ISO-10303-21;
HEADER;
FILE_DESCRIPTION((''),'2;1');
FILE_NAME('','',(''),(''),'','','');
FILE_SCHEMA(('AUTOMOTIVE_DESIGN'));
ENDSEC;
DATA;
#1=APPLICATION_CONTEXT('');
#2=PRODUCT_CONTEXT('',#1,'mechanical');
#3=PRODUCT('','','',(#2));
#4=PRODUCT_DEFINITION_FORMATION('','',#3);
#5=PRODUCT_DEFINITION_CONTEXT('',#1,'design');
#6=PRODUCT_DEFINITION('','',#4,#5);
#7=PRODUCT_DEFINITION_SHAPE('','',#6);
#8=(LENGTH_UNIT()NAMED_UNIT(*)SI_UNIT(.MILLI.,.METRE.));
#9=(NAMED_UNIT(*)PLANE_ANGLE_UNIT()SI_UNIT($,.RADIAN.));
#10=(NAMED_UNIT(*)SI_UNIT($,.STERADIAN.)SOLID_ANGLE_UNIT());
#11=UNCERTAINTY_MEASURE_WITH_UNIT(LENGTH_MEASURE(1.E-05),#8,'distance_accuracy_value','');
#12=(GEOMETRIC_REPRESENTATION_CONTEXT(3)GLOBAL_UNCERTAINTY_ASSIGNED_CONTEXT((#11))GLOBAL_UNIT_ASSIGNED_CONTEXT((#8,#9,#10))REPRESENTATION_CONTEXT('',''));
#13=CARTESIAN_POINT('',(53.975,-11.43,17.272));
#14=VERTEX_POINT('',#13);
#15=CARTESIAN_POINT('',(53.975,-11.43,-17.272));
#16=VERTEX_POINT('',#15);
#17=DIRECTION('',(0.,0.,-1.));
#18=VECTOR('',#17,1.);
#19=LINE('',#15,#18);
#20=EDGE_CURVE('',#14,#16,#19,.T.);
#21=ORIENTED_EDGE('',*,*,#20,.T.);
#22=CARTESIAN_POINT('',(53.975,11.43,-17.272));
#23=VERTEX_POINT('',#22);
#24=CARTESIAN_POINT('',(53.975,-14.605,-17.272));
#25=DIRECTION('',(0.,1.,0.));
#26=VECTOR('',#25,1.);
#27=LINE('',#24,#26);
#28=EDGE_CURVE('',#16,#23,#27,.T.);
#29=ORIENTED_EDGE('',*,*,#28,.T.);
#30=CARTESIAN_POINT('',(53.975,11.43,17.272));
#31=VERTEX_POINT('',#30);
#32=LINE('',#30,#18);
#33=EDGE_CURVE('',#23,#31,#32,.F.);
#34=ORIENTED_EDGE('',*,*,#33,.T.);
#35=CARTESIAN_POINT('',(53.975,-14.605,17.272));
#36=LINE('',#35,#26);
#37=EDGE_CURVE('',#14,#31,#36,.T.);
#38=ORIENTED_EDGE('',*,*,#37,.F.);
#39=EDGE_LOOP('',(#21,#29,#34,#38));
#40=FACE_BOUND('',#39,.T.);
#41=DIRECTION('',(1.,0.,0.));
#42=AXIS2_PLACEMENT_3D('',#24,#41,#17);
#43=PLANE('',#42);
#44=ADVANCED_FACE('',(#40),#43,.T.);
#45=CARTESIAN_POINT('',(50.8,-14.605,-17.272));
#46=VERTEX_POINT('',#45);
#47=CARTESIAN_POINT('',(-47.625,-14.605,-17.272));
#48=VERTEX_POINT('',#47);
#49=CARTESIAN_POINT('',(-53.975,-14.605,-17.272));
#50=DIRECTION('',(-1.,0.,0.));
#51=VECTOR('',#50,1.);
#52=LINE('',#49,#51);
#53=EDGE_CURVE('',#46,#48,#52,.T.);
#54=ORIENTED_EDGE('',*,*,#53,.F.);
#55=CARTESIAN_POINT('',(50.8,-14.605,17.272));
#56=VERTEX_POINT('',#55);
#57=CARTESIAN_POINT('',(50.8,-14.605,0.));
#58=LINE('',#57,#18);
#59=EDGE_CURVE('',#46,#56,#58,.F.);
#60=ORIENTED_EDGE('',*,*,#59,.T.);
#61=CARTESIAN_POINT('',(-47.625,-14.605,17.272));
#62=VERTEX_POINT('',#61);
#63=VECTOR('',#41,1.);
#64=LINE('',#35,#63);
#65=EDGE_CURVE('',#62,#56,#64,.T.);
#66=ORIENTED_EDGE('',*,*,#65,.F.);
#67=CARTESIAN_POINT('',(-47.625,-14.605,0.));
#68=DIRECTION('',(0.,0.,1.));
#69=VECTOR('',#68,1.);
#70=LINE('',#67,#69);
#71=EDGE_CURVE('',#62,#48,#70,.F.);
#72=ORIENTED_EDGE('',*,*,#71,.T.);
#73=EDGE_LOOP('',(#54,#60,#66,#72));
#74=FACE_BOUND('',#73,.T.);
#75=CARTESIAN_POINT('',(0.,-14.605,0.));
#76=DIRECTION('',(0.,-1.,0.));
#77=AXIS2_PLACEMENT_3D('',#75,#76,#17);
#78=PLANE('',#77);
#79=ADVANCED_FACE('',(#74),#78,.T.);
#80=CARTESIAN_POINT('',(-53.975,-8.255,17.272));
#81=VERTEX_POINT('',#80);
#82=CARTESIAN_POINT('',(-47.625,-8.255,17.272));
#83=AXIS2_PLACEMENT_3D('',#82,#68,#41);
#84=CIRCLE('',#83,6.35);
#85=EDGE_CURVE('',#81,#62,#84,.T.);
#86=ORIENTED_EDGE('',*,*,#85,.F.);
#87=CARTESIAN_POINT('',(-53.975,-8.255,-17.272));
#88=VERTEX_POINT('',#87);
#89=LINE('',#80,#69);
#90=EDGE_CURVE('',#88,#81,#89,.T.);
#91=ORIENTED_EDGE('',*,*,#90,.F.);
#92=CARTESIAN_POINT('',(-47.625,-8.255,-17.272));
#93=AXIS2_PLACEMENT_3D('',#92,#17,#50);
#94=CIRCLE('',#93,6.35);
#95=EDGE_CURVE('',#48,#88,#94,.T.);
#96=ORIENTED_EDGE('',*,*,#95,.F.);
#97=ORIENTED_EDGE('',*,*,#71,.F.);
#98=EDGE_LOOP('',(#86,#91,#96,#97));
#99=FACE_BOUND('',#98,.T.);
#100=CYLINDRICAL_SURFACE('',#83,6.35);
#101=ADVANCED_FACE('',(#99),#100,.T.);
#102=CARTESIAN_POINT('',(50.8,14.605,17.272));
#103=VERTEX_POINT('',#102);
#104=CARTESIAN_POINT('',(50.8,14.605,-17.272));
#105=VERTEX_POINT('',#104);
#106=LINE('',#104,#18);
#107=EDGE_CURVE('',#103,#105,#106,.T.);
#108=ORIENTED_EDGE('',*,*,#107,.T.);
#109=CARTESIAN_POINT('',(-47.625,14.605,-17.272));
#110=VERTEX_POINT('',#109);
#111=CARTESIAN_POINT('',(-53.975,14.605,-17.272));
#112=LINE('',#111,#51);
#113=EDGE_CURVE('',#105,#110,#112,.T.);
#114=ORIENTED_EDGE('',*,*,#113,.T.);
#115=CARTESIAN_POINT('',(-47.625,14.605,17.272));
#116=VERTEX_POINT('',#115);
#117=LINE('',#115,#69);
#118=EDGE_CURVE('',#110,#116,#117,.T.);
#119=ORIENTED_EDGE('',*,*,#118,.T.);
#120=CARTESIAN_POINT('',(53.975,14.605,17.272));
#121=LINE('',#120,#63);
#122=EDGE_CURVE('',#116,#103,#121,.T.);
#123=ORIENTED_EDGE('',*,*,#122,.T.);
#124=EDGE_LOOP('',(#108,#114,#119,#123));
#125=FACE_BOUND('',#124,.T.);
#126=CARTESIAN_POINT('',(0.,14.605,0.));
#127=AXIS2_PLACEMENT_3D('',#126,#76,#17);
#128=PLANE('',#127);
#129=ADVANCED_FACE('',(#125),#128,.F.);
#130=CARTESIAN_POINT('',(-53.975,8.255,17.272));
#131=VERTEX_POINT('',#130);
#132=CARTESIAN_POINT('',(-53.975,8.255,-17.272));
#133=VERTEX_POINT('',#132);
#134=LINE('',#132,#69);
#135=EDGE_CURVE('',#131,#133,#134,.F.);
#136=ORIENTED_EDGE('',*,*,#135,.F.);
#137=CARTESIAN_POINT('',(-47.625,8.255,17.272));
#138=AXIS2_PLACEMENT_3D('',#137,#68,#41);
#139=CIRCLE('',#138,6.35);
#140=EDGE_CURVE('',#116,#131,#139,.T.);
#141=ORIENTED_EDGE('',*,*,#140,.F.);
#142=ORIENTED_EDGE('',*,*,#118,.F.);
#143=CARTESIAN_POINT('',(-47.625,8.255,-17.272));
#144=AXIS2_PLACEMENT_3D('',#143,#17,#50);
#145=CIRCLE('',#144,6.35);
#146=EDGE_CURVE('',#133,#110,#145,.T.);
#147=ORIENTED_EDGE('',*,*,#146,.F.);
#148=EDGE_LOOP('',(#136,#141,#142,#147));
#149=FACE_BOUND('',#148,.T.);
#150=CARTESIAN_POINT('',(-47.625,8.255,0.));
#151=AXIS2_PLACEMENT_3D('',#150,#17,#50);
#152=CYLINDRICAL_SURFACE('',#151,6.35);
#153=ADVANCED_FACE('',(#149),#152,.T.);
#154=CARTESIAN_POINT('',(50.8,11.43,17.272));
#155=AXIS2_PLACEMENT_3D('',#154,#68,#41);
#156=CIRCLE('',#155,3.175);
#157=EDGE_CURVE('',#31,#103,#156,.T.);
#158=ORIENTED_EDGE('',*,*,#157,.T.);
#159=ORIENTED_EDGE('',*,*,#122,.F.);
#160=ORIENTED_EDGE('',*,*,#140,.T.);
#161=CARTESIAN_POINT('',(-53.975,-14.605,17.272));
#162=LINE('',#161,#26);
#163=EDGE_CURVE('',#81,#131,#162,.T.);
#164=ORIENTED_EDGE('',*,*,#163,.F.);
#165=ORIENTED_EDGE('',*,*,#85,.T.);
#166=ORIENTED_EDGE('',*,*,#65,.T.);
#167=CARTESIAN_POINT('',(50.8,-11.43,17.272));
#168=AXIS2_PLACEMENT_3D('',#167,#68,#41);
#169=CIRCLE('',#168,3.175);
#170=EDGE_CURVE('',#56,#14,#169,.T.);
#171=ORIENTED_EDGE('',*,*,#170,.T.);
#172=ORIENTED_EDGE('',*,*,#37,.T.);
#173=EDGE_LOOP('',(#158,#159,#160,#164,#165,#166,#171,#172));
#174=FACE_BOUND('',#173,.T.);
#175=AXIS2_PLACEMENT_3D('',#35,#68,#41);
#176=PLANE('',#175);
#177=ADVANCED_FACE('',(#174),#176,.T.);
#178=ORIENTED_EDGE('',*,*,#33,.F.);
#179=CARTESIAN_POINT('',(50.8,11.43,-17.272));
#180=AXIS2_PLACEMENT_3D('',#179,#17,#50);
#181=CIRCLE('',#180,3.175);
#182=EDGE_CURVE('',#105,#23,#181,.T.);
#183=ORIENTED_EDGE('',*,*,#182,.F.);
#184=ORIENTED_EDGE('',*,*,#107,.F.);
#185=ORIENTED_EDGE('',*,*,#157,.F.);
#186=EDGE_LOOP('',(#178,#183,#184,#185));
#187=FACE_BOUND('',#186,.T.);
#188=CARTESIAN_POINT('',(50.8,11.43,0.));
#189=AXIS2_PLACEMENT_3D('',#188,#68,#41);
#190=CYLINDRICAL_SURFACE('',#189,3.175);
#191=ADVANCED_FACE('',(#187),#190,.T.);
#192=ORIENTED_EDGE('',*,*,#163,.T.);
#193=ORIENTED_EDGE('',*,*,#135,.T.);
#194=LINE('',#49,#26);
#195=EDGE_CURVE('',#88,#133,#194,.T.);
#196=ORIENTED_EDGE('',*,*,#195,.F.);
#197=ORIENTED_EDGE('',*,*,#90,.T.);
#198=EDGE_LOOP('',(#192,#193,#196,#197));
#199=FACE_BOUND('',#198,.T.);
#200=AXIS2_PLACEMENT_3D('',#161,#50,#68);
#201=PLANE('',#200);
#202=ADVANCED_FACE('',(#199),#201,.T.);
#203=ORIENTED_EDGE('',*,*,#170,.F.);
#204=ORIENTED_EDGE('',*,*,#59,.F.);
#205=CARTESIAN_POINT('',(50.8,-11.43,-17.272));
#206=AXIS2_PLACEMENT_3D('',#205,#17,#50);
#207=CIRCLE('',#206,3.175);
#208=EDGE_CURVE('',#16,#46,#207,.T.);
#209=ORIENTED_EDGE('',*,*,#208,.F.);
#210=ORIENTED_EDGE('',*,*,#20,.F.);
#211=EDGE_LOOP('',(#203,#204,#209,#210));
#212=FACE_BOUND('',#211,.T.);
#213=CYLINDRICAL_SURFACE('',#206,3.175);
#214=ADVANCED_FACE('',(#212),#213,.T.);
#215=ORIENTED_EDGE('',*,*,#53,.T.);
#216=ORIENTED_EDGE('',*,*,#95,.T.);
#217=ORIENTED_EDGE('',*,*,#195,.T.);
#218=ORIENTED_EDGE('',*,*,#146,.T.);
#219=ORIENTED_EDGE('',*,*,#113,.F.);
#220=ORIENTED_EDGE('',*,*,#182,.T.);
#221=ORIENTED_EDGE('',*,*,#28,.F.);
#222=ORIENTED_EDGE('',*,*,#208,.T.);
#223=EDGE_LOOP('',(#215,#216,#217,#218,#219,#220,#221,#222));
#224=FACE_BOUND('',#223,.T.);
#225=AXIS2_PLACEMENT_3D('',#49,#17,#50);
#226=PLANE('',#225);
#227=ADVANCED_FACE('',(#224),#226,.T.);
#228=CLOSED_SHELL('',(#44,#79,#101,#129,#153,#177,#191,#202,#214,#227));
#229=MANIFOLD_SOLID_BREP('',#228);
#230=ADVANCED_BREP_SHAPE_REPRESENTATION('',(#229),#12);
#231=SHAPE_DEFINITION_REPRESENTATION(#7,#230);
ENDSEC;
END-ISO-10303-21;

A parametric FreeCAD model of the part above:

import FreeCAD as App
import Part
import Sketcher
from FreeCAD import Vector
Q = App.Units.Quantity


def edges_at(feature, points):
    """Names of the edges that pass closest to the given points."""
    edges = feature.Shape.Edges
    near = lambda p: min(range(len(edges)), key=lambda i: edges[i].distToShape(Part.Vertex(*p))[0])
    return sorted({f"Edge{near(p) + 1}" for p in points})


def add_polygon(sketch, points):
    """Adds a closed chain of lines whose ends are joined by coincident constraints."""
    first, n = sketch.GeometryCount, len(points)
    for a, b in zip(points, points[1:] + points[:1]):
        sketch.addGeometry(Part.LineSegment(App.Vector(*a, 0), App.Vector(*b, 0)), False)
    for i in range(n):
        sketch.addConstraint(Sketcher.Constraint("Coincident", first + i, 2, first + (i + 1) % n, 1))

doc = App.newDocument("Part")
body = doc.addObject("PartDesign::Body", "Body")

# Sketch on XZ plane
sketch1 = body.newObject("Sketcher::SketchObject", "Sketch")
sketch1.AttachmentSupport = (doc.getObject("XZ_Plane"), [""])
sketch1.MapMode = "FlatFace"
add_polygon(sketch1, [(-53.975, -17.272), (-53.975, 17.272), (53.975, 17.272), (53.975, -17.272)])  # lines 0-3
sketch1.addConstraint([
    Sketcher.Constraint("Vertical", 0),
    Sketcher.Constraint("Horizontal", 1),
    Sketcher.Constraint("Vertical", 2),
    Sketcher.Constraint("Horizontal", 3),
    Sketcher.Constraint("Symmetric", 0, 2, 2, 2, -1, 1),
    Sketcher.Constraint("DistanceX", 1, 1, 1, 2, Q("4.25 in")),
    Sketcher.Constraint("DistanceY", 0, 1, 0, 2, Q("1.36 in")),
])
pad1 = body.newObject("PartDesign::Pad", "Pad")
pad1.Profile = sketch1
pad1.Type = "TwoLengths"
pad1.Length = Q("0.575 in")
pad1.Length2 = Q("0.575 in")
pad1.Reversed = True
doc.recompute()

fillet = body.newObject("PartDesign::Fillet", "Fillet")
fillet.Base = (pad1, edges_at(pad1, [(53.975, -14.605, 0), (53.975, 14.605, 0)]))
fillet.Radius = Q("0.125 in")
doc.recompute()

fillet2 = body.newObject("PartDesign::Fillet", "Fillet001")
fillet2.Base = (fillet, edges_at(fillet, [(-53.975, 14.605, 0), (-53.975, -14.605, 0)]))
fillet2.Radius = Q("0.25 in")

doc.recompute()
